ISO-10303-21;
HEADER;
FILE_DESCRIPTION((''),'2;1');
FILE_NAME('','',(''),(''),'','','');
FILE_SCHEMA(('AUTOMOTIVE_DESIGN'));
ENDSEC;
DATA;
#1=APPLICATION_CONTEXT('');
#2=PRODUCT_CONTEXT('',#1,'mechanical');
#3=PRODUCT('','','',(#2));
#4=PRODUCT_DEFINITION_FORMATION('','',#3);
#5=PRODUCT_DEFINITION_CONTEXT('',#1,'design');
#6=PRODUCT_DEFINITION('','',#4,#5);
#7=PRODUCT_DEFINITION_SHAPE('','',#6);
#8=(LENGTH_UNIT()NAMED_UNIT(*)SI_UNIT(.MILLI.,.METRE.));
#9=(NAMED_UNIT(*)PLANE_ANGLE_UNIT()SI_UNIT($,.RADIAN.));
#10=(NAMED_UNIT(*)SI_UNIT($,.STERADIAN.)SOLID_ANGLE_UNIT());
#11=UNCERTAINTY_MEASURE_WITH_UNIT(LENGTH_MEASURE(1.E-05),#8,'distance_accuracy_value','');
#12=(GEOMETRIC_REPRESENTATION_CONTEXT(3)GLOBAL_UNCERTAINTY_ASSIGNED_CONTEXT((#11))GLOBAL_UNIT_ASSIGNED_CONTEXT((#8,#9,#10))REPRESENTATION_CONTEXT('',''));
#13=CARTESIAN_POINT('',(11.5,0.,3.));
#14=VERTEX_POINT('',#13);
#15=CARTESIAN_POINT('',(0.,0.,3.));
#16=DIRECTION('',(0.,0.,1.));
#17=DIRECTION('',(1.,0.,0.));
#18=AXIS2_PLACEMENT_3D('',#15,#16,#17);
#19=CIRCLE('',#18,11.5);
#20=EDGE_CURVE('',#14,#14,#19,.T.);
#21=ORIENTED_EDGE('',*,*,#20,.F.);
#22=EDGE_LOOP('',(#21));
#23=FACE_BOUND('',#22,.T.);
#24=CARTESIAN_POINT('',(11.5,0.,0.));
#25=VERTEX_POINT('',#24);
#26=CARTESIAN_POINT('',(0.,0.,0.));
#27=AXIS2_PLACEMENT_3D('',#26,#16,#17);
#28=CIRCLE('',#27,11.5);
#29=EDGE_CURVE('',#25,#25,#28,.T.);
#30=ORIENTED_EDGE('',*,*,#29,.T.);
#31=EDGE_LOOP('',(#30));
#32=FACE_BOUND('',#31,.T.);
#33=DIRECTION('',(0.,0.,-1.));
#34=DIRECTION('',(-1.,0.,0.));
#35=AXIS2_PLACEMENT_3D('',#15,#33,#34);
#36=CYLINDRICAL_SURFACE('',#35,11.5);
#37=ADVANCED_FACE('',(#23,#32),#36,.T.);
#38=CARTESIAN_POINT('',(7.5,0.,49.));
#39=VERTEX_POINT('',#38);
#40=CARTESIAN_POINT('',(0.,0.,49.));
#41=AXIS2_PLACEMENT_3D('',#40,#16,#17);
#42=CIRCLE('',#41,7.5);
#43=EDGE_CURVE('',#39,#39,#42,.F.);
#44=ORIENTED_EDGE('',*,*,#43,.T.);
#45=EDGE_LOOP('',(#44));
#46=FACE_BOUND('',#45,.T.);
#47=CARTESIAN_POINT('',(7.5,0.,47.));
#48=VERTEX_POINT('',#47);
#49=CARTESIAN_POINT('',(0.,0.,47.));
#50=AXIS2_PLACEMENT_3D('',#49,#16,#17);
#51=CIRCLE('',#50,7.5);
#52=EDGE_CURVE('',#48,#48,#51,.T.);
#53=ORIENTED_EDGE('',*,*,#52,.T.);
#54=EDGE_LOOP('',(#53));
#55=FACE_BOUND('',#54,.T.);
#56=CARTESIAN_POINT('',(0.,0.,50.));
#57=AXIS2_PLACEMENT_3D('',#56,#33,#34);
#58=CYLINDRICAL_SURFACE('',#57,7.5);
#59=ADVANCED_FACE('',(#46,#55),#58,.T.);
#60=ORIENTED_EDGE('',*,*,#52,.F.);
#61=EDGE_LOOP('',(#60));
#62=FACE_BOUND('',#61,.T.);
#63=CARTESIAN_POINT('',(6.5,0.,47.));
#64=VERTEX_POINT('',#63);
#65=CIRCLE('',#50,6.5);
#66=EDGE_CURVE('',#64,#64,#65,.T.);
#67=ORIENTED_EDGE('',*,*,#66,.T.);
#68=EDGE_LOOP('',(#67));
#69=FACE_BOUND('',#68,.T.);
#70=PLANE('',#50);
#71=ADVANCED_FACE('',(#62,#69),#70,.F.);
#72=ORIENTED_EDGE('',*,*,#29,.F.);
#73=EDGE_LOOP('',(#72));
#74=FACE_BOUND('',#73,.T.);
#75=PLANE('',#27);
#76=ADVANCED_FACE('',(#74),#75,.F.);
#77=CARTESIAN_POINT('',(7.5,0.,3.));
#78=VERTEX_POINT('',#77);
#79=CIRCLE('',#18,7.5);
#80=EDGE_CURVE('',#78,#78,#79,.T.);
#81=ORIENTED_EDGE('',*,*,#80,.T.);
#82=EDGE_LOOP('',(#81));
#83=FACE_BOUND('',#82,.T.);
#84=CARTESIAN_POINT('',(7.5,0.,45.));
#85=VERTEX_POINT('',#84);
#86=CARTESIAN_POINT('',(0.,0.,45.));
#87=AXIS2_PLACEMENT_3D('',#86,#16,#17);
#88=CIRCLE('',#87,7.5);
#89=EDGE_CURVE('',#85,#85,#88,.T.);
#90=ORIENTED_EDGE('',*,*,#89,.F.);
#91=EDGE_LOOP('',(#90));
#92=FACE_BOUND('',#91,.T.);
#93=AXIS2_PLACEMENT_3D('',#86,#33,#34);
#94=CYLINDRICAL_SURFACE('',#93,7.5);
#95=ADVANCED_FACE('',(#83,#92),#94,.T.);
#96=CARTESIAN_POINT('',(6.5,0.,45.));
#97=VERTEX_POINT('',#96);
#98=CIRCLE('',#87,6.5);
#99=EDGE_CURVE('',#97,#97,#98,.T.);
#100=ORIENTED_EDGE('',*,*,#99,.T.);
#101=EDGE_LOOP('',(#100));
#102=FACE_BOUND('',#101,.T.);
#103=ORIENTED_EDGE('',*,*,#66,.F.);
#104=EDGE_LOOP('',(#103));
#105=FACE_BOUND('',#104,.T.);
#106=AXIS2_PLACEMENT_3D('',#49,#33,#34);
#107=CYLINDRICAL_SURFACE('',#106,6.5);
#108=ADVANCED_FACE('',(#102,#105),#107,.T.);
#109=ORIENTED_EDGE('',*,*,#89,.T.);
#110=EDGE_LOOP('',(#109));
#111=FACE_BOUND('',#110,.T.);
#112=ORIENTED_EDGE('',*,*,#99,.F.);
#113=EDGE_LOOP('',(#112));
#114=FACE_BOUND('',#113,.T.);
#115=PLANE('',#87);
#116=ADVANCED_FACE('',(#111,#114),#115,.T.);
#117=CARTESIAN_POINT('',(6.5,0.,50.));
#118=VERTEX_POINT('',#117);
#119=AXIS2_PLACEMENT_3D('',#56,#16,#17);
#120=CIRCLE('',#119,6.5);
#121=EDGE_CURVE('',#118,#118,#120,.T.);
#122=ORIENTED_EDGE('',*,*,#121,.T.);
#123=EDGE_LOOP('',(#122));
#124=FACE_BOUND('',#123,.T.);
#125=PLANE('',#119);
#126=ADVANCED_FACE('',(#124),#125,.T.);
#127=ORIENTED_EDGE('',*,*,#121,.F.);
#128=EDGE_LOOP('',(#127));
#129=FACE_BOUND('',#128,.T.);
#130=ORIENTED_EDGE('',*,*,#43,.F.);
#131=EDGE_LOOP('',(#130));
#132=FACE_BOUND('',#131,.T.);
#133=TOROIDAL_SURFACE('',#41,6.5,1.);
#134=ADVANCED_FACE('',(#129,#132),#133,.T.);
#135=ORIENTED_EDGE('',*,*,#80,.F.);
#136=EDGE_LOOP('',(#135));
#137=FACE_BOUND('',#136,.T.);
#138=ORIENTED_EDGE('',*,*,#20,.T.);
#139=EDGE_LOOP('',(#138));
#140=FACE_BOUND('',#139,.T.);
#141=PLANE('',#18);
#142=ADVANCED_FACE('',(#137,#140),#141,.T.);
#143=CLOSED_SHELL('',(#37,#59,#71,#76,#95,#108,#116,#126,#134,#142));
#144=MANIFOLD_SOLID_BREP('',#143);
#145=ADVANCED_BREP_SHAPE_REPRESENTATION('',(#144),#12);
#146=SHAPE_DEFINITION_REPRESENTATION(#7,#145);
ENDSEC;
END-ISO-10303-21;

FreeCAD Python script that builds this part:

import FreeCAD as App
import Part
import Sketcher


def edges_at(feature, points):
    """Names of the edges that pass closest to the given points."""
    edges = feature.Shape.Edges
    near = lambda p: min(range(len(edges)), key=lambda i: edges[i].distToShape(Part.Vertex(*p))[0])
    return sorted({f"Edge{near(p) + 1}" for p in points})

doc = App.newDocument("Part")
params = doc.addObject("Spreadsheet::Sheet", "Params")
for row, (alias, value) in enumerate([
    ("sketch1_diameter", "15 mm"),
    ("pad1_length", "45 mm"),
    ("sketch2_diameter", "23 mm"),
    ("pad2_length", "3 mm"),
    ("sketch3_diameter", "13 mm"),
    ("pad3_length", "2 mm"),
    ("sketch4_diameter", "15 mm"),
    ("pad4_length", "3 mm"),
    ("fillet_radius", "1 mm"),
], start=1):
    params.set(f"A{row}", alias)
    params.set(f"B{row}", "=" + value)
    params.setAlias(f"B{row}", alias)

body = doc.addObject("PartDesign::Body", "Body")

# Sketch on XY plane
sketch1 = body.newObject("Sketcher::SketchObject", "Sketch")
sketch1.AttachmentSupport = (doc.getObject("XY_Plane"), [""])
sketch1.MapMode = "FlatFace"
sketch1.addGeometry(Part.Circle(App.Vector(0, 0, 0), App.Vector(0, 0, 1), 8), False)
sketch1.addConstraint([
    Sketcher.Constraint("Coincident", 0, 3, -1, 1),
    Sketcher.Constraint("Diameter", 0, 15.0),
])
sketch1.setExpression("Constraints[1]", "Params.sketch1_diameter")
pad1 = body.newObject("PartDesign::Pad", "Pad")
pad1.Profile = sketch1
pad1.setExpression("Length", "Params.pad1_length")

# Sketch on XY plane
sketch2 = body.newObject("Sketcher::SketchObject", "Sketch001")
sketch2.AttachmentSupport = (doc.getObject("XY_Plane"), [""])
sketch2.MapMode = "FlatFace"
sketch2.addGeometry(Part.Circle(App.Vector(0, 0, 0), App.Vector(0, 0, 1), 12), False)
sketch2.addConstraint([
    Sketcher.Constraint("Coincident", 0, 3, -1, 1),
    Sketcher.Constraint("Diameter", 0, 23.0),
])
sketch2.setExpression("Constraints[1]", "Params.sketch2_diameter")
pad2 = body.newObject("PartDesign::Pad", "Pad001")
pad2.Profile = sketch2
pad2.setExpression("Length", "Params.pad2_length")

# Sketch on XY plane
sketch3 = body.newObject("Sketcher::SketchObject", "Sketch002")
sketch3.AttachmentSupport = (doc.getObject("XY_Plane"), [""])
sketch3.MapMode = "FlatFace"
sketch3.AttachmentOffset = App.Placement(App.Vector(0, 0, 45), App.Rotation())
sketch3.addGeometry(Part.Circle(App.Vector(0, 0, 0), App.Vector(0, 0, 1), 6), False)
sketch3.addConstraint([
    Sketcher.Constraint("Coincident", 0, 3, -1, 1),
    Sketcher.Constraint("Diameter", 0, 13.0),
])
sketch3.setExpression("Constraints[1]", "Params.sketch3_diameter")
pad3 = body.newObject("PartDesign::Pad", "Pad002")
pad3.Profile = sketch3
pad3.setExpression("Length", "Params.pad3_length")

# Sketch on XY plane
sketch4 = body.newObject("Sketcher::SketchObject", "Sketch003")
sketch4.AttachmentSupport = (doc.getObject("XY_Plane"), [""])
sketch4.MapMode = "FlatFace"
sketch4.AttachmentOffset = App.Placement(App.Vector(0, 0, 47), App.Rotation())
sketch4.addGeometry(Part.Circle(App.Vector(0, 0, 0), App.Vector(0, 0, 1), 8), False)
sketch4.addConstraint([
    Sketcher.Constraint("Coincident", 0, 3, -1, 1),
    Sketcher.Constraint("Diameter", 0, 15.0),
])
sketch4.setExpression("Constraints[1]", "Params.sketch4_diameter")
pad4 = body.newObject("PartDesign::Pad", "Pad003")
pad4.Profile = sketch4
pad4.setExpression("Length", "Params.pad4_length")
doc.recompute()

fillet = body.newObject("PartDesign::Fillet", "Fillet")
fillet.Base = (pad4, edges_at(pad4, [(-7.5, 0, 50)]))
fillet.setExpression("Radius", "Params.fillet_radius")

doc.recompute()
